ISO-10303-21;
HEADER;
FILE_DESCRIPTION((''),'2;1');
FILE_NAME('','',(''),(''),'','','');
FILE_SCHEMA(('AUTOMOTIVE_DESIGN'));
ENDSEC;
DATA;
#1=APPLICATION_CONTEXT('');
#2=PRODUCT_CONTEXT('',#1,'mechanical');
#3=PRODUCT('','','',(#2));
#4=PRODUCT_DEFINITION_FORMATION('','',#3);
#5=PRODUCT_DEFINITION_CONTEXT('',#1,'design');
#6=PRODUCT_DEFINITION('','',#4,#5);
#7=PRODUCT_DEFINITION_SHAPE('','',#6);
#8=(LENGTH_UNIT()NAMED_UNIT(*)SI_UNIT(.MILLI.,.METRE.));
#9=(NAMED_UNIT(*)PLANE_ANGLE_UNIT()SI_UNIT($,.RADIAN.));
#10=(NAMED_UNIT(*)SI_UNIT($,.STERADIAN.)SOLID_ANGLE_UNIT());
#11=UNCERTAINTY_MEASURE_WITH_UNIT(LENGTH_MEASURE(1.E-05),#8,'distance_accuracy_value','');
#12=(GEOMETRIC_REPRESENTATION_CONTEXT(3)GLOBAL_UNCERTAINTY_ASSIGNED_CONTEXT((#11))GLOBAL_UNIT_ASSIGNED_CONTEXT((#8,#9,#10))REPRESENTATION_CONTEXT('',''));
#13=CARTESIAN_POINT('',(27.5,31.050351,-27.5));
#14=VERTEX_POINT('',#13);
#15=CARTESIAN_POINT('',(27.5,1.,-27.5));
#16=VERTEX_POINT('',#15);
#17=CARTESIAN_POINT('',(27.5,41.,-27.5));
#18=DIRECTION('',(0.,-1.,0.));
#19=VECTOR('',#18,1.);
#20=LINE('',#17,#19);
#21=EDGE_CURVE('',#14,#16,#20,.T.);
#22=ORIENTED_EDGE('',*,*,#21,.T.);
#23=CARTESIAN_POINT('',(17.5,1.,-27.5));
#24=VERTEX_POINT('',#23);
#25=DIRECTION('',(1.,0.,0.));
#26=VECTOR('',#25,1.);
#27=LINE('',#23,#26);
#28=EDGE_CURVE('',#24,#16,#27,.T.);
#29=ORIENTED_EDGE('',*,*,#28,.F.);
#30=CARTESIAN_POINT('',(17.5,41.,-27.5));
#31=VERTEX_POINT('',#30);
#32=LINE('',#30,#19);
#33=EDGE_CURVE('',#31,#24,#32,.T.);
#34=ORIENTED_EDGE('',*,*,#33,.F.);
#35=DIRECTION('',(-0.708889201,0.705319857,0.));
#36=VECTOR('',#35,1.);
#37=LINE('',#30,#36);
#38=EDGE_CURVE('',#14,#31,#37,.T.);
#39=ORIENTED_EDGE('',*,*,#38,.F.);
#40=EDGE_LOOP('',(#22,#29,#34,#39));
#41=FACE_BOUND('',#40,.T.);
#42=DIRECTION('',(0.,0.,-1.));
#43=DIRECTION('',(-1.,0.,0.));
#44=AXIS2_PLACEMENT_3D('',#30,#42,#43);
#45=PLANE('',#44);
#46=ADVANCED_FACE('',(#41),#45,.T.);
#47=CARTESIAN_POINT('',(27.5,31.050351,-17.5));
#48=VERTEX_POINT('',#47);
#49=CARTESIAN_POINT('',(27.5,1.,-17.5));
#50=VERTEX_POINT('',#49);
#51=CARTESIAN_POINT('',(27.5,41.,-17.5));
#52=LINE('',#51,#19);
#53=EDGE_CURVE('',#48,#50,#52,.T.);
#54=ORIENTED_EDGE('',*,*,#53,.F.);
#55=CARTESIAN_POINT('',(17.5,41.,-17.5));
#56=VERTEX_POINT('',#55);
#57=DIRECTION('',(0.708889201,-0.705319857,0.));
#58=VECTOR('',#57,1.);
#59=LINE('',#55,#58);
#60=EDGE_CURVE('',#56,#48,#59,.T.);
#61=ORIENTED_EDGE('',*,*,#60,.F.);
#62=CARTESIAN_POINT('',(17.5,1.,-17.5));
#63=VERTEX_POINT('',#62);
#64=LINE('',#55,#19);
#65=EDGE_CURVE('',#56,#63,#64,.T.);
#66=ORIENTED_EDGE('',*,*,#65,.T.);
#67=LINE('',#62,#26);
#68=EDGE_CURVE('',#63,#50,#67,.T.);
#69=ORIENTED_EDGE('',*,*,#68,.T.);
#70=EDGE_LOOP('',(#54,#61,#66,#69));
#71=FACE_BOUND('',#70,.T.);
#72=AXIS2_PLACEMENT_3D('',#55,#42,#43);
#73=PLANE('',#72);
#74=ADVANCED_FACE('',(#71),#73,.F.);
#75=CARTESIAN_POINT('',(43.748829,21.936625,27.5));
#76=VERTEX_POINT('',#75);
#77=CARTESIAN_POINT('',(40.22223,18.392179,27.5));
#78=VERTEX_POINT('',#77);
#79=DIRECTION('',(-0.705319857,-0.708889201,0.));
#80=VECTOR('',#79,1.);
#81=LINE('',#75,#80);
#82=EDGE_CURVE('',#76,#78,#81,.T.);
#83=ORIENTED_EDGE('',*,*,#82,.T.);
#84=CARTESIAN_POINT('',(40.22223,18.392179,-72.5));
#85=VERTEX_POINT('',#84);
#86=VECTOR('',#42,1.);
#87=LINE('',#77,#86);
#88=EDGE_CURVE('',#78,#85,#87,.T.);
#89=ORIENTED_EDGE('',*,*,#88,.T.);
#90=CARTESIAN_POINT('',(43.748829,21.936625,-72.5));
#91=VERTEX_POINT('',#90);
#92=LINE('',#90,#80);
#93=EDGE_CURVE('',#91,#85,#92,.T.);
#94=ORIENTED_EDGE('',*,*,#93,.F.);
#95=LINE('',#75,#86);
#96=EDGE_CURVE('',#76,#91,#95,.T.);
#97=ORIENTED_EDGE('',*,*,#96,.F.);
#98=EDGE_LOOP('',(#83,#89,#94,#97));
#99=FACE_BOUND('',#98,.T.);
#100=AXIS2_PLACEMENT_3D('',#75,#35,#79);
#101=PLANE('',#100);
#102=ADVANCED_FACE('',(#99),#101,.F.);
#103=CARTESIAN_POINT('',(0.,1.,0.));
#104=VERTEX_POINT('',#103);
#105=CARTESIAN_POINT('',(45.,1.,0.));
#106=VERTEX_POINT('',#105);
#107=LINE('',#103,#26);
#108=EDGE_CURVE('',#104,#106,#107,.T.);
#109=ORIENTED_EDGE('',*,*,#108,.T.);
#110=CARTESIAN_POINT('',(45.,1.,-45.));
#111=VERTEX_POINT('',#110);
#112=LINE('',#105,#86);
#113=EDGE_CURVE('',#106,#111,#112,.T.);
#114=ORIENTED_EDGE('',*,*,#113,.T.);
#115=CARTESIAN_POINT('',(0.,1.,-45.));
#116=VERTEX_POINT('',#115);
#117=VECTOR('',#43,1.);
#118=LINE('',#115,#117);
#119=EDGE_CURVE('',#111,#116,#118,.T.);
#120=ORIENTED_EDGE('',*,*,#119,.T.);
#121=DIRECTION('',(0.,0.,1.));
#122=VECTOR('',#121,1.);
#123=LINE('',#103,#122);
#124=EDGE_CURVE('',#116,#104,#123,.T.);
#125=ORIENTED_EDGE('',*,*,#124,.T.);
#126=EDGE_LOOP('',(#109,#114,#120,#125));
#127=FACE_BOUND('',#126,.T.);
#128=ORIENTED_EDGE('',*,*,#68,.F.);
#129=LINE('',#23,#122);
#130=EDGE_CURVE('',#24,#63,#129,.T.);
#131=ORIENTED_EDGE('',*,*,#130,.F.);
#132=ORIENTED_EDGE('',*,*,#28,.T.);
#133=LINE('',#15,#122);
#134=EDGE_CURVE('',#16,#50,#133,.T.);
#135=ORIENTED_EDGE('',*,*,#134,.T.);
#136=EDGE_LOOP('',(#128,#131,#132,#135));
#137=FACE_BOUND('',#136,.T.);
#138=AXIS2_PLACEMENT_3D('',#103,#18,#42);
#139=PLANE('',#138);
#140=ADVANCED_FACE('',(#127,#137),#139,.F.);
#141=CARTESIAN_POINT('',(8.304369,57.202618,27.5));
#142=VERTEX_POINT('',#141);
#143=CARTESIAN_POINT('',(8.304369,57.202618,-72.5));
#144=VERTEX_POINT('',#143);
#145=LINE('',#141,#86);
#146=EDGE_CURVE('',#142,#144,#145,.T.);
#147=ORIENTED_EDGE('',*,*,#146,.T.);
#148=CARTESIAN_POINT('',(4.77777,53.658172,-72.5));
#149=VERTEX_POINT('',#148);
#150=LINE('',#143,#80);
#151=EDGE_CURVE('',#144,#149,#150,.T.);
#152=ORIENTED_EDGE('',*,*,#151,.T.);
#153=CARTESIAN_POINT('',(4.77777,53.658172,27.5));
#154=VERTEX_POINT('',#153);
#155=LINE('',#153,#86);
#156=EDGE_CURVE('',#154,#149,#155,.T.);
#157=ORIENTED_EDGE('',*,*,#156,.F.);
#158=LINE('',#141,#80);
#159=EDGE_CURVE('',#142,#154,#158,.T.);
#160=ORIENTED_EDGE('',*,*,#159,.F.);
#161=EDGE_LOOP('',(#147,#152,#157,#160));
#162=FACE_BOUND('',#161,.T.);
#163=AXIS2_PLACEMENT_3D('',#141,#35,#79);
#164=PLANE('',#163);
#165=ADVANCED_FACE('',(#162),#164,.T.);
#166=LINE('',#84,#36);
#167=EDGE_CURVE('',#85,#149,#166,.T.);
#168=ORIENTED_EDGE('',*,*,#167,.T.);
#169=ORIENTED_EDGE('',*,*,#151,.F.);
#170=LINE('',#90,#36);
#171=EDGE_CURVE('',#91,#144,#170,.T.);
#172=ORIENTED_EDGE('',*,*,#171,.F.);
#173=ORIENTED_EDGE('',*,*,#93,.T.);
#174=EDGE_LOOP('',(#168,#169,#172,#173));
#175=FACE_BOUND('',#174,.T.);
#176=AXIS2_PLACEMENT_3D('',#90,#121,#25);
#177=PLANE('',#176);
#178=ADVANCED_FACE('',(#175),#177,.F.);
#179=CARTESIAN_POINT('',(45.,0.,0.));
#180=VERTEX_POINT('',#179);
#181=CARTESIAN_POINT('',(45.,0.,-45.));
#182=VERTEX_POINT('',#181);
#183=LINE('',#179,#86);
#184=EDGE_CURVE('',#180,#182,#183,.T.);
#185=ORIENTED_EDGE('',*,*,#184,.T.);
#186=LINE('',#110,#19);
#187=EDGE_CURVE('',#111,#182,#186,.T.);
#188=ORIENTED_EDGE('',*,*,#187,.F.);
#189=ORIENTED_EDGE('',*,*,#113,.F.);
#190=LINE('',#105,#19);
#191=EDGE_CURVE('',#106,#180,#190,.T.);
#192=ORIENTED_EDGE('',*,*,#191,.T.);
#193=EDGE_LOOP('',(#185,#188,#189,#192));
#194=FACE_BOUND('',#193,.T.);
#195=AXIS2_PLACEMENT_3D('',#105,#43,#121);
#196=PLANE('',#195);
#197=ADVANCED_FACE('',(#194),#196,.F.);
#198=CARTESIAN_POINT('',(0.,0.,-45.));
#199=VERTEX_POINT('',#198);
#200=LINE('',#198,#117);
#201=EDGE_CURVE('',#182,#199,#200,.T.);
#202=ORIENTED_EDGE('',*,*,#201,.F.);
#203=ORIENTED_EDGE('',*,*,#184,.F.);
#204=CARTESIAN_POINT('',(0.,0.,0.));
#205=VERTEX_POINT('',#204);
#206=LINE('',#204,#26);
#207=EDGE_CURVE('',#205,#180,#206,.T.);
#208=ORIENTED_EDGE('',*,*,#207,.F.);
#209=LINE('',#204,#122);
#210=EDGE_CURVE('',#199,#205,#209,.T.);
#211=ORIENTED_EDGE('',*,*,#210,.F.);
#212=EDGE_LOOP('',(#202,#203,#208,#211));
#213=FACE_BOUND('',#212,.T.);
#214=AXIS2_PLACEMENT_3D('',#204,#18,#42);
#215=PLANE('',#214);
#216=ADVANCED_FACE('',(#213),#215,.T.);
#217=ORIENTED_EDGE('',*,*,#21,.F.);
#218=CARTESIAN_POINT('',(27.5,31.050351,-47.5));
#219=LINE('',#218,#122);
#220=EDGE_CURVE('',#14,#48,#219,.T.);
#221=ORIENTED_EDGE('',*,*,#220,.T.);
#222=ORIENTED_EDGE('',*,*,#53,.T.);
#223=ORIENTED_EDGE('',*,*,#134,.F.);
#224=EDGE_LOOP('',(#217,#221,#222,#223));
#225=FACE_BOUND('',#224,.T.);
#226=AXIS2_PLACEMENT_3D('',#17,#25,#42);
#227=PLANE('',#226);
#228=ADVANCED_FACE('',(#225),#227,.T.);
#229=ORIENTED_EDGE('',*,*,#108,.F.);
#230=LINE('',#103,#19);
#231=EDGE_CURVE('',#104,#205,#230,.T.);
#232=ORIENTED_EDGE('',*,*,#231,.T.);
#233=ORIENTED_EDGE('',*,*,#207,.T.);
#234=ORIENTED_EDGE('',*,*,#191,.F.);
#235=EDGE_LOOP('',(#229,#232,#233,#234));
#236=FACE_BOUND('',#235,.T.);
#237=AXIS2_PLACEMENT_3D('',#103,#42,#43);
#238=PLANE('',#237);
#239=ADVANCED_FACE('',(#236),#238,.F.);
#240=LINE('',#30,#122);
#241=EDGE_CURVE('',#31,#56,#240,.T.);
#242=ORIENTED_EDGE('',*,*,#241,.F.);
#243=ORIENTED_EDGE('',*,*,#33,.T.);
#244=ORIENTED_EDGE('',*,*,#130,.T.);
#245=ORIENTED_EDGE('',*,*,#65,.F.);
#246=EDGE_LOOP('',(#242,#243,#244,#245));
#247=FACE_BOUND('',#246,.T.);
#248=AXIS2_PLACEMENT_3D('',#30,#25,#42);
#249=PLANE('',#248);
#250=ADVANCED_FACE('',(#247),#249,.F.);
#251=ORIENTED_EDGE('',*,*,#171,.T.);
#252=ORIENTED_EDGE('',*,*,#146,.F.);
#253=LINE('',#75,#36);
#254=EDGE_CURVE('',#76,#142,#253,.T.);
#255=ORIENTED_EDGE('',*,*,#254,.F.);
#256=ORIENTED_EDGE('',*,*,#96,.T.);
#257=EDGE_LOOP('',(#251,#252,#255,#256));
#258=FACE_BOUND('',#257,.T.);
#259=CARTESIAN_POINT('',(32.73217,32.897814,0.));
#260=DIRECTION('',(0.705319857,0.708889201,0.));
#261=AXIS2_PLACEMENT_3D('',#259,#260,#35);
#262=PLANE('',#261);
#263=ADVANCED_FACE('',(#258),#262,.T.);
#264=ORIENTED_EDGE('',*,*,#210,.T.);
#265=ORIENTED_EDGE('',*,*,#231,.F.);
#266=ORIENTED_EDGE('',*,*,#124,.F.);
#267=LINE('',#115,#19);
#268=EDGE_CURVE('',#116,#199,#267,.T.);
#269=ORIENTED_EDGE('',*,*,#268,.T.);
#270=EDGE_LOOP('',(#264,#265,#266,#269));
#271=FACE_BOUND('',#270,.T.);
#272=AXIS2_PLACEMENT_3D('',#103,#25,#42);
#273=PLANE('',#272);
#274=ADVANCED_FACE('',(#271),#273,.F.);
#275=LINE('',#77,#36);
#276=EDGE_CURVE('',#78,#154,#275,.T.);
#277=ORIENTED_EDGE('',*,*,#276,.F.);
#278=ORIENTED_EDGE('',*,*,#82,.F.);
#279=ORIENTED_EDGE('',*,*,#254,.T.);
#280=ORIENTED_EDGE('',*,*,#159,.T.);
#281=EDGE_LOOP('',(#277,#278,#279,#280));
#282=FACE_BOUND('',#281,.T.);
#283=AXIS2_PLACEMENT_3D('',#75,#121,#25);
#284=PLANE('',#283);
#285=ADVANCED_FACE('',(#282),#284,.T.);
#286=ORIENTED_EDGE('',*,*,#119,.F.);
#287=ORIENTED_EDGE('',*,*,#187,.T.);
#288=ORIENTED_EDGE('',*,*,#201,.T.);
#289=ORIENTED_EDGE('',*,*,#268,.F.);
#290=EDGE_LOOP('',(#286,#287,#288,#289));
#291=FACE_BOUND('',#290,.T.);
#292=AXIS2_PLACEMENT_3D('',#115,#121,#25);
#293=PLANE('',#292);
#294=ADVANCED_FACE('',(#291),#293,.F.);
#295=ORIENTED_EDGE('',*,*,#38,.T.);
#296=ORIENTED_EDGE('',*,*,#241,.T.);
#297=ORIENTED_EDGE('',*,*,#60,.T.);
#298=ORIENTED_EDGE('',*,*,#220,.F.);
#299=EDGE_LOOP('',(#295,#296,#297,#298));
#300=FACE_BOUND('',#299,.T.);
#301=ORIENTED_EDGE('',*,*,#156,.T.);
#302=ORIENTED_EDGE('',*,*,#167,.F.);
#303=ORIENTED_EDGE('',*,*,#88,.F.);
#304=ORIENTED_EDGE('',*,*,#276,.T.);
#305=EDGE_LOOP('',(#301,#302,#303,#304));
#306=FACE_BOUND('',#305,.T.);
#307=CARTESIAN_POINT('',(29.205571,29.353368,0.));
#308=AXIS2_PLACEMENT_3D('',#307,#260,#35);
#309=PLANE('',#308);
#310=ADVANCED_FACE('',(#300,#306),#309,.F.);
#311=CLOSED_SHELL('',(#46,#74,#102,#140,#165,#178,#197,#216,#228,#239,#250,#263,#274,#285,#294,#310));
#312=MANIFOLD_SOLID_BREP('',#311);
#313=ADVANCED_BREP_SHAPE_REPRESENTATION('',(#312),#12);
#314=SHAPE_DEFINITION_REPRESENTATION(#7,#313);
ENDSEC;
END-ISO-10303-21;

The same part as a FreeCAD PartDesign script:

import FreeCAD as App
import Part
import Sketcher


def add_polygon(sketch, points):
    """Adds a closed chain of lines whose ends are joined by coincident constraints."""
    first, n = sketch.GeometryCount, len(points)
    for a, b in zip(points, points[1:] + points[:1]):
        sketch.addGeometry(Part.LineSegment(App.Vector(*a, 0), App.Vector(*b, 0)), False)
    for i in range(n):
        sketch.addConstraint(Sketcher.Constraint("Coincident", first + i, 2, first + (i + 1) % n, 1))

doc = App.newDocument("Part")
params = doc.addObject("Spreadsheet::Sheet", "Params")
for row, (alias, value) in enumerate([
    ("sketch1_width", "45 mm"),
    ("pad1_length", "1 mm"),
    ("sketch2_width", "10 mm"),
    ("pad2_length", "40 mm"),
    ("pocket1_length", "30 mm"),
    ("sketch4_width", "50 mm"),
    ("sketch4_height", "100 mm"),
    ("pad3_length", "5 mm"),
], start=1):
    params.set(f"A{row}", alias)
    params.set(f"B{row}", "=" + value)
    params.setAlias(f"B{row}", alias)

body = doc.addObject("PartDesign::Body", "Body")

sketch1 = body.newObject("Sketcher::SketchObject", "Sketch")
sketch1.AttachmentSupport = (doc.getObject("XZ_Plane"), [""])
sketch1.MapMode = "FlatFace"
add_polygon(sketch1, [(0, -45), (0, 0), (45, 0), (45, -45)])
sketch1.addConstraint(Sketcher.Constraint("Vertical", 0))
sketch1.addConstraint(Sketcher.Constraint("Horizontal", 1))
sketch1.addConstraint(Sketcher.Constraint("Vertical", 2))
sketch1.addConstraint(Sketcher.Constraint("Horizontal", 3))
sketch1.addConstraint(Sketcher.Constraint("Coincident", 0, 2, -1, 1))
sketch1.addConstraint(Sketcher.Constraint("Equal", 3, 0))
sketch1.addConstraint(Sketcher.Constraint("DistanceX", 1, 1, 1, 2, 45.0))
sketch1.setExpression("Constraints[10]", "Params.sketch1_width")
pad1 = body.newObject("PartDesign::Pad", "Pad")
pad1.Profile = sketch1
pad1.setExpression("Length", "Params.pad1_length")
pad1.Reversed = True

sketch2 = body.newObject("Sketcher::SketchObject", "Sketch001")
sketch2.AttachmentSupport = (doc.getObject("XZ_Plane"), [""])
sketch2.MapMode = "FlatFace"
sketch2.AttachmentOffset = App.Placement(App.Vector(0, 0, -1), App.Rotation())
add_polygon(sketch2, [(18, -28), (18, -18), (28, -18), (28, -28)])
sketch2.addConstraint(Sketcher.Constraint("Vertical", 0))
sketch2.addConstraint(Sketcher.Constraint("Horizontal", 1))
sketch2.addConstraint(Sketcher.Constraint("Vertical", 2))
sketch2.addConstraint(Sketcher.Constraint("Horizontal", 3))
sketch2.addConstraint(Sketcher.Constraint("Equal", 3, 0))
sketch2.addConstraint(Sketcher.Constraint("DistanceX", 1, 1, 1, 2, 10.0))
sketch2.addConstraint(Sketcher.Constraint("DistanceX", -1, 1, 0, 2, 17.5))
sketch2.addConstraint(Sketcher.Constraint("DistanceY", 0, 2, -1, 1, 17.5))
sketch2.setExpression("Constraints[9]", "Params.sketch2_width")
pad2 = body.newObject("PartDesign::Pad", "Pad001")
pad2.Profile = sketch2
pad2.setExpression("Length", "Params.pad2_length")
pad2.Reversed = True

sketch3 = body.newObject("Sketcher::SketchObject", "Sketch002")
sketch3.AttachmentSupport = (doc.getObject("XY_Plane"), [""])
sketch3.MapMode = "FlatFace"
sketch3.AttachmentOffset = App.Placement(App.Vector(0, 0, -17.5), App.Rotation())
add_polygon(sketch3, [(18, 41), (28, 31), (35, 39), (26, 49)])
sketch3.addConstraint(Sketcher.Constraint("Perpendicular", 0, 1))
sketch3.addConstraint(Sketcher.Constraint("Perpendicular", 1, 2))
sketch3.addConstraint(Sketcher.Constraint("DistanceY", -1, 1, 3, 2, 41.0))
sketch3.addConstraint(Sketcher.Constraint("DistanceX", 3, 2, 0, 2, 10.0))
sketch3.addConstraint(Sketcher.Constraint("DistanceX", -1, 1, 0, 2, 27.5))
sketch3.addConstraint(Sketcher.Constraint("Distance", 2, 13.475428))
sketch3.addConstraint(Sketcher.Constraint("Distance", 3, 11.233581))
sketch3.addConstraint(Sketcher.Constraint("DistanceY", -1, 1, 0, 2, 31.050351))
pocket1 = body.newObject("PartDesign::Pocket", "Pocket")
pocket1.Profile = sketch3
pocket1.setExpression("Length", "Params.pocket1_length")

sketch4 = body.newObject("Sketcher::SketchObject", "Sketch003")
sketch4.Placement = App.Placement(App.Vector(29.205571, 29.353368, 0), App.Rotation(App.Vector(0.708889201, -0.705319857, 0), App.Vector(0, 0, -1), App.Vector(0.705319857, 0.708889201, 0), "ZXY"))
add_polygon(sketch4, [(-34, 72), (-34, -27), (16, -27), (16, 72)])
sketch4.addConstraint(Sketcher.Constraint("Vertical", 0))
sketch4.addConstraint(Sketcher.Constraint("Horizontal", 1))
sketch4.addConstraint(Sketcher.Constraint("Vertical", 2))
sketch4.addConstraint(Sketcher.Constraint("Horizontal", 3))
sketch4.addConstraint(Sketcher.Constraint("DistanceX", 1, 1, 1, 2, 50.0))
sketch4.addConstraint(Sketcher.Constraint("DistanceY", 0, 2, 0, 1, 100.0))
sketch4.addConstraint(Sketcher.Constraint("DistanceY", 0, 2, -1, 1, 27.5))
sketch4.addConstraint(Sketcher.Constraint("DistanceX", 0, 2, -1, 1, 34.459265))
sketch4.setExpression("Constraints[8]", "Params.sketch4_width")
sketch4.setExpression("Constraints[9]", "Params.sketch4_height")
pad3 = body.newObject("PartDesign::Pad", "Pad002")
pad3.Profile = sketch4
pad3.setExpression("Length", "Params.pad3_length")

doc.recompute()
